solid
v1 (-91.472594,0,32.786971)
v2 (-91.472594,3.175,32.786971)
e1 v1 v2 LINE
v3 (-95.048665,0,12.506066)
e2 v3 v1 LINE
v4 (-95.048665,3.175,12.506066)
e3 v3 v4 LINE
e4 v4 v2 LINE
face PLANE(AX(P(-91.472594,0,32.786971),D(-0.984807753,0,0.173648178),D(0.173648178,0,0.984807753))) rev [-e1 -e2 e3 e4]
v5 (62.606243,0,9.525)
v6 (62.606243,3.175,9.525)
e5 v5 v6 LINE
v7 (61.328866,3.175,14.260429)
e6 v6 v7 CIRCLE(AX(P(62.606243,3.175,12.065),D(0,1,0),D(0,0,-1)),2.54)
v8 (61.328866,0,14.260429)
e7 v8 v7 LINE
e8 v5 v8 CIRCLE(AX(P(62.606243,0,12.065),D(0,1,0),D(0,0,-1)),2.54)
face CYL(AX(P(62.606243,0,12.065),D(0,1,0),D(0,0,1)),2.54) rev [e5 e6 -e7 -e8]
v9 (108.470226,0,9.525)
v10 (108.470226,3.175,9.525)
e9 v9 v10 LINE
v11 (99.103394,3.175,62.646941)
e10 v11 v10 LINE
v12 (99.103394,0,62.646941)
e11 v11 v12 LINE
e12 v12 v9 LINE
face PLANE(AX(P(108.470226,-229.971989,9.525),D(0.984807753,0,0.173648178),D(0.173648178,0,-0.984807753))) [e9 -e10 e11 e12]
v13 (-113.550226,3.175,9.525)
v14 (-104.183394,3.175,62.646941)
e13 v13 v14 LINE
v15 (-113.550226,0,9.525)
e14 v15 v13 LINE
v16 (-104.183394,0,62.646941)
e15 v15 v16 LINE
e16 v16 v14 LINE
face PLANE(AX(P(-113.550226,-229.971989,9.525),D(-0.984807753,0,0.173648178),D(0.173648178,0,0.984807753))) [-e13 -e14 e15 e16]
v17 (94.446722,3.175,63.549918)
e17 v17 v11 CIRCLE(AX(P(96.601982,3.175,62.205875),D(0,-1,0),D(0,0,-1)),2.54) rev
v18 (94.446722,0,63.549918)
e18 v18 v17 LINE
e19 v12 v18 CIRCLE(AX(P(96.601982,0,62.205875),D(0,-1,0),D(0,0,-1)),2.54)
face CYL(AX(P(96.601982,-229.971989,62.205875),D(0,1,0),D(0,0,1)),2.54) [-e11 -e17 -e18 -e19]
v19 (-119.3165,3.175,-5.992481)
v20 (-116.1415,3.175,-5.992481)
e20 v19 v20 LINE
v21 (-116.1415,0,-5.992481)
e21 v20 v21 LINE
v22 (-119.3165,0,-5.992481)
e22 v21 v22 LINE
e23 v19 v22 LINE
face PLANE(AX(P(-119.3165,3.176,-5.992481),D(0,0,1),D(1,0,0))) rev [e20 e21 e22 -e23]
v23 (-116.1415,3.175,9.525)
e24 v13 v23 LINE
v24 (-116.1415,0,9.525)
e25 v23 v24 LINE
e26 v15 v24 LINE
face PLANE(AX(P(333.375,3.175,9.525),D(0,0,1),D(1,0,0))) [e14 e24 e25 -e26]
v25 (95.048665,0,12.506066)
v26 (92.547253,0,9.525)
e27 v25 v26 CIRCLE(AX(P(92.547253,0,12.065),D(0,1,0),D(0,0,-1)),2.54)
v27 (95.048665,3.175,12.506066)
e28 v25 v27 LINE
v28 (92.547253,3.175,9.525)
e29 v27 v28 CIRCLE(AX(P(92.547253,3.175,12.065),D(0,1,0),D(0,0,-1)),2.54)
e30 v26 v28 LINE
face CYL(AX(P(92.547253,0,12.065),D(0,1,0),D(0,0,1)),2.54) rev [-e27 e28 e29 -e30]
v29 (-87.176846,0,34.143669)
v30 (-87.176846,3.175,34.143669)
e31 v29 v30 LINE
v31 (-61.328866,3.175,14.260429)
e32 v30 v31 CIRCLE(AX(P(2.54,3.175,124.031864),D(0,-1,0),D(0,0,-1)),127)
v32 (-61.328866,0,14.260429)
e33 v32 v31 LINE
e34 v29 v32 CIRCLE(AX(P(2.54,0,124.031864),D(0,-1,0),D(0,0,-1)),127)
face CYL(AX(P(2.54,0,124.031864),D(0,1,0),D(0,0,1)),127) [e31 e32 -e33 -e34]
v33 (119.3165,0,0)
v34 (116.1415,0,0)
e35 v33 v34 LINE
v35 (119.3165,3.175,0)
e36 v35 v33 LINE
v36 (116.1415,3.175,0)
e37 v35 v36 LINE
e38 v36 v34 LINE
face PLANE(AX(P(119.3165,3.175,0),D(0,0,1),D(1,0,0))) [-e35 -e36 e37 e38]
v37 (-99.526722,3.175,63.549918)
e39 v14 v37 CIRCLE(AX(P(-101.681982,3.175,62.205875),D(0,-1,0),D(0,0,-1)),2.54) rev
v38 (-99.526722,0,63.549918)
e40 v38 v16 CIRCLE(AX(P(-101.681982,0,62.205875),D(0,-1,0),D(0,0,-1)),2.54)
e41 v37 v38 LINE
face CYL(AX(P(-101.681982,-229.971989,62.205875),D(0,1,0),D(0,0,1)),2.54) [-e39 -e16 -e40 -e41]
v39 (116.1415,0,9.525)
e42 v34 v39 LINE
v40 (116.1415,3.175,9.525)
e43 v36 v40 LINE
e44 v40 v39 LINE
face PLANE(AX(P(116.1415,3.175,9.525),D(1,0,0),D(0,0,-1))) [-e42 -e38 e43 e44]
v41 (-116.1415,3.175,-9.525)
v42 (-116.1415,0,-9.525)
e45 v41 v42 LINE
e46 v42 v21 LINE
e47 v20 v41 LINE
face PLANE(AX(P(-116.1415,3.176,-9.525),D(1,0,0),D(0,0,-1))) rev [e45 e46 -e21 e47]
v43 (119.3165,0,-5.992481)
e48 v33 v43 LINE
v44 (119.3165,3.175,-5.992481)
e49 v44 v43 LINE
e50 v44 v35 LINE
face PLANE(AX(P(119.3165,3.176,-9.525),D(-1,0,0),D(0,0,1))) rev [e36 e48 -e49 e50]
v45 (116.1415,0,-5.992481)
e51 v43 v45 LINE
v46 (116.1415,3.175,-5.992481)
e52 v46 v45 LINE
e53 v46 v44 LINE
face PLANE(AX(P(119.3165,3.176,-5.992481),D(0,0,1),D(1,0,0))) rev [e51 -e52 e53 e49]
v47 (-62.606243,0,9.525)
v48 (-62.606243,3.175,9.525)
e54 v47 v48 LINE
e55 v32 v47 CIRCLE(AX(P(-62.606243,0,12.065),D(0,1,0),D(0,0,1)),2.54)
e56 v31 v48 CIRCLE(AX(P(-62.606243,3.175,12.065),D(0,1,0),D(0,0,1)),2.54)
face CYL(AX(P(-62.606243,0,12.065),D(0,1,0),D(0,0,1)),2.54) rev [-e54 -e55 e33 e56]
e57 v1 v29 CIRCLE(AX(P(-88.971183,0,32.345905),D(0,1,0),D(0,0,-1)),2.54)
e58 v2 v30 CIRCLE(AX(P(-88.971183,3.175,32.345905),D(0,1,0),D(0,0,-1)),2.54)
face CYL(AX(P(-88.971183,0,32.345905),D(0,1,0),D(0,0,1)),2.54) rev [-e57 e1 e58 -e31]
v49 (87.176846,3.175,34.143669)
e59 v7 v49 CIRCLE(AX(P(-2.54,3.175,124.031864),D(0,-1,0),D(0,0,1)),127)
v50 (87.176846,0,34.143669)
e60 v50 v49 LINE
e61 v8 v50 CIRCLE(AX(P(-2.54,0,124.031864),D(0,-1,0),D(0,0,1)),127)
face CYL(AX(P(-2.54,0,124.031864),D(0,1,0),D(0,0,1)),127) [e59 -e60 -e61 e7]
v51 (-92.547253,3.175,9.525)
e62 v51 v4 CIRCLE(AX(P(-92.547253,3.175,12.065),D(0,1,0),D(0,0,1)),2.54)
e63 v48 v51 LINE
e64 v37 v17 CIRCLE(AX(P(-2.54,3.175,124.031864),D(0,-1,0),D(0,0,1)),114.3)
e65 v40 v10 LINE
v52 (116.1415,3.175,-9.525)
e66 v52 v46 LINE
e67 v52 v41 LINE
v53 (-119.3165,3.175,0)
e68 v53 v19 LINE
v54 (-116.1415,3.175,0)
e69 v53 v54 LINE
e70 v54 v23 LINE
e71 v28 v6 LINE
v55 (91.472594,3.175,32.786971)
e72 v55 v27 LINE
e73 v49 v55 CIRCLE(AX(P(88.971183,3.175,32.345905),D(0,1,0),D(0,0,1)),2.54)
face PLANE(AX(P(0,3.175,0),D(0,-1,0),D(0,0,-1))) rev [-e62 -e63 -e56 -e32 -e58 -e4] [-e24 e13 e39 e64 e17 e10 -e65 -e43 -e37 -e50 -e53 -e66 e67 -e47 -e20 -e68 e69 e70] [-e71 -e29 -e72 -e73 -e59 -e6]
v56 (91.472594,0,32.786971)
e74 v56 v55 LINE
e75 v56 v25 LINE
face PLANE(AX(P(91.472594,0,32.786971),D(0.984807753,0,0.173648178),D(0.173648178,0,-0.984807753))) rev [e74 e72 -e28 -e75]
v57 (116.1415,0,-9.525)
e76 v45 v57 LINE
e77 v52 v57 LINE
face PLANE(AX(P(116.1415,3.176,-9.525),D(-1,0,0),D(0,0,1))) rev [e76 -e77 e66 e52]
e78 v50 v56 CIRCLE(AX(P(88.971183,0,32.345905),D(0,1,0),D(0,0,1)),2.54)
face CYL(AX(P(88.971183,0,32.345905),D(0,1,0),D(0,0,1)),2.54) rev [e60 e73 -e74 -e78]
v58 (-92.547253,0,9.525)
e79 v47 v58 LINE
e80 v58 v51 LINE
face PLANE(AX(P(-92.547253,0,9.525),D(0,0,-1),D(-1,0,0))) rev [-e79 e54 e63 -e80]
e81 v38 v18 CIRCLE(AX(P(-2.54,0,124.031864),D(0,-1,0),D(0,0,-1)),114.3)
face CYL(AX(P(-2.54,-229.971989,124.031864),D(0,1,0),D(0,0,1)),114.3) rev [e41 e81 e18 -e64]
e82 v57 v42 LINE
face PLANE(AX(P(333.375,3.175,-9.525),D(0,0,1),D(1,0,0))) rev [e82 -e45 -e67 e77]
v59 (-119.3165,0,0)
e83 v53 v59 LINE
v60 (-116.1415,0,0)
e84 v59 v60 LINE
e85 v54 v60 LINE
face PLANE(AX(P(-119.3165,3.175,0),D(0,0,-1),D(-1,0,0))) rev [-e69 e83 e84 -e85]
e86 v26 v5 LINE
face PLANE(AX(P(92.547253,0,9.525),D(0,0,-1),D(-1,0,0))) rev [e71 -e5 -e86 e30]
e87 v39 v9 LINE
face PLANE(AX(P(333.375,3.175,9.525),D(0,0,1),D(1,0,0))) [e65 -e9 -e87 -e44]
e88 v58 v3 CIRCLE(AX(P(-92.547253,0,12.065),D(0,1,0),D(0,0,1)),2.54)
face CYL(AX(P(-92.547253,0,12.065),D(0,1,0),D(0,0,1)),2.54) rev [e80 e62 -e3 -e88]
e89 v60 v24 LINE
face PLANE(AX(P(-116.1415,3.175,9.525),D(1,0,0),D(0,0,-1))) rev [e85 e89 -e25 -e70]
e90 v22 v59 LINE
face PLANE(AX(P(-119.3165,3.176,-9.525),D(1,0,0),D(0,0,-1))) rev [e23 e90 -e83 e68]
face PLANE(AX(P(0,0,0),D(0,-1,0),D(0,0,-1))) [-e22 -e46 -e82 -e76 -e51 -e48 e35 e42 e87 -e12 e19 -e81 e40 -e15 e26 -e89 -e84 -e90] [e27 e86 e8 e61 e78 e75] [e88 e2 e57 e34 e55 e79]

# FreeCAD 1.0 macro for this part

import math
import FreeCAD as App
import Part
import Sketcher
from FreeCAD import Vector
Q = App.Units.Quantity


def edges_at(feature, points):
    """Names of the edges that pass closest to the given points."""
    edges = feature.Shape.Edges
    near = lambda p: min(range(len(edges)), key=lambda i: edges[i].distToShape(Part.Vertex(*p))[0])
    return sorted({f"Edge{near(p) + 1}" for p in points})


def add_polygon(sketch, points):
    """Adds a closed chain of lines whose ends are joined by coincident constraints."""
    first, n = sketch.GeometryCount, len(points)
    for a, b in zip(points, points[1:] + points[:1]):
        sketch.addGeometry(Part.LineSegment(App.Vector(*a, 0), App.Vector(*b, 0)), False)
    for i in range(n):
        sketch.addConstraint(Sketcher.Constraint("Coincident", first + i, 2, first + (i + 1) % n, 1))

doc = App.newDocument("Part")
body = doc.addObject("PartDesign::Body", "Body")

sketch1 = body.newObject("Sketcher::SketchObject", "Sketch")
sketch1.AttachmentSupport = (doc.getObject("XZ_Plane"), [""])
sketch1.MapMode = "FlatFace"
add_polygon(sketch1, [(-333, -10), (-333, 10), (333, 10), (333, -10)])
sketch1.addConstraint([
    Sketcher.Constraint("Vertical", 0),
    Sketcher.Constraint("Horizontal", 1),
    Sketcher.Constraint("Vertical", 2),
    Sketcher.Constraint("Horizontal", 3),
    Sketcher.Constraint("Symmetric", 0, 2, 2, 2, -1, 1),
    Sketcher.Constraint("DistanceX", 1, 1, 1, 2, Q("26.25 in")),
    Sketcher.Constraint("DistanceY", 0, 1, 0, 2, Q("0.75 in")),
])
pad1 = body.newObject("PartDesign::Pad", "Pad")
pad1.Profile = sketch1
pad1.Length = Q("0.125 in")
pad1.Reversed = True

sketch2 = body.newObject("Sketcher::SketchObject", "Sketch001")
sketch2.AttachmentSupport = (doc.getObject("XZ_Plane"), [""])
sketch2.MapMode = "FlatFace"
add_polygon(sketch2, [(-333.4, 9.5), (-333.4, 0), (-330.2, 0), (-330.2, 9.5)])
add_polygon(sketch2, [(-119.3, 9.5), (-119.3, 0), (-116.1, 0), (-116.1, 9.5)])
sketch2.addConstraint([
    Sketcher.Constraint("Vertical", 0),
    Sketcher.Constraint("Horizontal", 1),
    Sketcher.Constraint("Vertical", 2),
    Sketcher.Constraint("Horizontal", 3),
    Sketcher.Constraint("Vertical", 4),
    Sketcher.Constraint("Horizontal", 5),
    Sketcher.Constraint("Vertical", 6),
    Sketcher.Constraint("Horizontal", 7),
    Sketcher.Constraint("PointOnObject", 0, 2, -1),
    Sketcher.Constraint("PointOnObject", 4, 2, -1),
    Sketcher.Constraint("Horizontal", 3, 2, 6, 2),
    Sketcher.Constraint("Equal", 3, 5),
    Sketcher.Constraint("DistanceX", 1, 2, -1, 1, Q("13 in")),
    Sketcher.Constraint("DistanceX", 1, 1, 1, 2, Q("0.125 in")),
    Sketcher.Constraint("DistanceY", 0, 2, 0, 1, Q("0.375 in")),
    Sketcher.Constraint("DistanceX", 4, 2, -1, 1, Q("4.6975 in")),
])
pocket1 = body.newObject("PartDesign::Pocket", "Pocket")
pocket1.Profile = sketch2
pocket1.Type = "ThroughAll"
doc.recompute()

mirrored = body.newObject("PartDesign::Mirrored", "Mirrored")
mirrored.Originals = [pocket1]
mirrored.MirrorPlane = (doc.getObject("YZ_Plane"), [""])
body.Tip = mirrored

sketch3 = body.newObject("Sketcher::SketchObject", "Sketch002")
sketch3.AttachmentSupport = (doc.getObject("XZ_Plane"), [""])
sketch3.MapMode = "FlatFace"
sketch3.AttachmentOffset = App.Placement(Vector(0, 0, -0.125 * 25.4), App.Rotation())
sketch3.addGeometry([
    Part.LineSegment(Vector(98, 69, 0), Vector(108, 10, 0)),
    Part.LineSegment(Vector(108, 10, 0), Vector(-114, 10, 0)),
    Part.LineSegment(Vector(-114, 10, 0), Vector(-103, 69, 0)),
    Part.ArcOfCircle(Part.Circle(Vector(-3, 124, 0), Vector(0, 0, 1), 114), math.radians(-151), math.radians(-29)),
], False)
sketch3.addConstraint([
    Sketcher.Constraint("Coincident", 0, 2, 1, 1),
    Sketcher.Constraint("Coincident", 1, 2, 2, 1),
    Sketcher.Constraint("Coincident", 2, 2, 3, 1),
    Sketcher.Constraint("Coincident", 3, 2, 0, 1),
    Sketcher.Constraint("Horizontal", 1),
    Sketcher.Constraint("Horizontal", 2, 2, 3, 2),
    Sketcher.Constraint("Equal", 0, 2),
    Sketcher.Constraint("Radius", 3, Q("4.5 in")),
    Sketcher.Constraint("Angle", 0, Q("-80 deg")),
    Sketcher.Constraint("DistanceX", 3, 3, -1, 1, Q("0.1 in")),
    Sketcher.Constraint("DistanceY", -1, 1, 0, 2, Q("0.375 in")),
    Sketcher.Constraint("Distance", 0, 60.8751),
    Sketcher.Constraint("DistanceX", 1, 2, 1, 1, 222.020451),
])
pad2 = body.newObject("PartDesign::Pad", "Pad001")
pad2.Profile = sketch3
pad2.Length = Q("0.125 in")
doc.recompute()

fillet = body.newObject("PartDesign::Fillet", "Fillet")
fillet.Base = (pad2, edges_at(pad2, [(-102.979, 1.587, 69.475), (97.899, 1.587, 69.475)]))
fillet.Radius = Q("0.1 in")

sketch4 = body.newObject("Sketcher::SketchObject", "Sketch003")
sketch4.AttachmentSupport = (doc.getObject("XZ_Plane"), [""])
sketch4.MapMode = "FlatFace"
sketch4.AttachmentOffset = App.Placement(Vector(0, 0, -0.125 * 25.4), App.Rotation())
sketch4.addGeometry([
    Part.LineSegment(Vector(-95, 12.5, 0), Vector(-91.5, 32.8, 0)),
    Part.ArcOfCircle(Part.Circle(Vector(-89, 32.3, 0), Vector(0, 0, 1), 2.5), math.radians(45), math.radians(170)),
    Part.ArcOfCircle(Part.Circle(Vector(2.5, 124, 0), Vector(0, 0, 1), 127), math.radians(-134.95), math.radians(-120.19)),
    Part.ArcOfCircle(Part.Circle(Vector(-62.6, 12.1, 0), Vector(0, 0, 1), 2.5), math.radians(-90), math.radians(60)),
    Part.LineSegment(Vector(-62.6, 9.5, 0), Vector(-92.5, 9.5, 0)),
    Part.ArcOfCircle(Part.Circle(Vector(-92.5, 12.1, 0), Vector(0, 0, 1), 2.5), math.radians(170), math.radians(270)),
    Part.LineSegment(Vector(92.5, 9.5, 0), Vector(62.6, 9.5, 0)),
    Part.ArcOfCircle(Part.Circle(Vector(62.6, 12.1, 0), Vector(0, 0, 1), 2.5), math.radians(120), math.radians(270)),
    Part.ArcOfCircle(Part.Circle(Vector(-2.5, 124, 0), Vector(0, 0, 1), 127), math.radians(-59.81), math.radians(-45.05)),
    Part.ArcOfCircle(Part.Circle(Vector(89, 32.3, 0), Vector(0, 0, 1), 2.5), math.radians(10), math.radians(135)),
    Part.LineSegment(Vector(91.5, 32.8, 0), Vector(95, 12.5, 0)),
    Part.ArcOfCircle(Part.Circle(Vector(92.5, 12.1, 0), Vector(0, 0, 1), 2.5), math.radians(-90), math.radians(10)),
], False)
sketch4.addConstraint([
    Sketcher.Constraint("Tangent", 0, 2, 1, 2),
    Sketcher.Constraint("Tangent", 1, 1, 2, 1),
    Sketcher.Constraint("Tangent", 2, 2, 3, 2),
    Sketcher.Constraint("Tangent", 3, 1, 4, 1),
    Sketcher.Constraint("Tangent", 4, 2, 5, 2),
    Sketcher.Constraint("Tangent", 5, 1, 0, 1),
    Sketcher.Constraint("Tangent", 6, 2, 7, 2),
    Sketcher.Constraint("Tangent", 7, 1, 8, 1),
    Sketcher.Constraint("Tangent", 8, 2, 9, 2),
    Sketcher.Constraint("Tangent", 9, 1, 10, 1),
    Sketcher.Constraint("Tangent", 10, 2, 11, 2),
    Sketcher.Constraint("Tangent", 11, 1, 6, 1),
    Sketcher.Constraint("Horizontal", 4),
    Sketcher.Constraint("Horizontal", 6),
    Sketcher.Constraint("Equal", 1, 3),
    Sketcher.Constraint("Equal", 3, 5),
    Sketcher.Constraint("Equal", 5, 7),
    Sketcher.Constraint("Equal", 2, 8),
    Sketcher.Constraint("Equal", 7, 9),
    Sketcher.Constraint("Equal", 9, 11),
    Sketcher.Constraint("Symmetric", 3, 3, 7, 3, -2),
    Sketcher.Constraint("Symmetric", 1, 3, 9, 3, -2),
    Sketcher.Constraint("Horizontal", 0, 2, 9, 1),
    Sketcher.Constraint("Radius", 2, Q("5 in")),
    Sketcher.Constraint("Radius", 1, Q("0.1 in")),
    Sketcher.Constraint("Angle", 0, Q("80 deg")),
    Sketcher.Constraint("DistanceX", -1, 1, 2, 3, Q("0.1 in")),
    Sketcher.Constraint("DistanceY", -1, 1, 3, 3, Q("0.475 in")),
    Sketcher.Constraint("DistanceX", 4, 2, 4, 1, 29.94101),
    Sketcher.Constraint("Distance", 0, 20.593771),
])
pocket2 = body.newObject("PartDesign::Pocket", "Pocket001")
pocket2.Profile = sketch4
pocket2.Type = "ThroughAll"
pocket2.Reversed = True

sketch5 = body.newObject("Sketcher::SketchObject", "Sketch004")
sketch5.AttachmentSupport = (doc.getObject("XZ_Plane"), [""])
sketch5.MapMode = "FlatFace"
add_polygon(sketch5, [(119, 10), (119, -10), (333, -10), (333, 10)])
sketch5.addConstraint([
    Sketcher.Constraint("Vertical", 0),
    Sketcher.Constraint("Horizontal", 1),
    Sketcher.Constraint("Vertical", 2),
    Sketcher.Constraint("Horizontal", 3),
    Sketcher.Constraint("DistanceY", 0, 2, 0, 1, Q("0.75 in")),
    Sketcher.Constraint("DistanceX", 1, 1, 1, 2, Q("8.4275 in")),
    Sketcher.Constraint("DistanceY", 0, 2, -1, 1, Q("0.375 in")),
    Sketcher.Constraint("DistanceX", -1, 1, 1, 2, Q("13.125 in")),
])
pocket3 = body.newObject("PartDesign::Pocket", "Pocket002")
pocket3.Profile = sketch5
pocket3.Type = "UpToFirst"

sketch6 = body.newObject("Sketcher::SketchObject", "Sketch005")
sketch6.AttachmentSupport = (doc.getObject("XZ_Plane"), [""])
sketch6.MapMode = "FlatFace"
add_polygon(sketch6, [(-333, 10), (-333, -10), (-119, -10), (-119, 10)])
sketch6.addConstraint([
    Sketcher.Constraint("Vertical", 0),
    Sketcher.Constraint("Horizontal", 1),
    Sketcher.Constraint("Vertical", 2),
    Sketcher.Constraint("Horizontal", 3),
    Sketcher.Constraint("DistanceY", 0, 2, 0, 1, Q("0.75 in")),
    Sketcher.Constraint("DistanceX", 1, 1, 1, 2, Q("8.4275 in")),
    Sketcher.Constraint("DistanceX", 0, 2, -1, 1, Q("13.125 in")),
    Sketcher.Constraint("DistanceY", 0, 2, -1, 1, Q("0.375 in")),
])
pocket4 = body.newObject("PartDesign::Pocket", "Pocket003")
pocket4.Profile = sketch6
pocket4.Type = "UpToFirst"

sketch7 = body.newObject("Sketcher::SketchObject", "Sketch006")
sketch7.AttachmentSupport = (doc.getObject("XZ_Plane"), [""])
sketch7.MapMode = "FlatFace"
add_polygon(sketch7, [(116.1, -6), (116.1, -9.5), (119.3, -9.5), (119.3, -6)])
sketch7.addConstraint([
    Sketcher.Constraint("Vertical", 0),
    Sketcher.Constraint("Horizontal", 1),
    Sketcher.Constraint("Vertical", 2),
    Sketcher.Constraint("Horizontal", 3),
    Sketcher.Constraint("DistanceX", 1, 1, 1, 2, Q("0.125 in")),
    Sketcher.Constraint("DistanceY", 0, 2, -1, 1, Q("0.375 in")),
    Sketcher.Constraint("DistanceX", -1, 1, 0, 2, Q("4.5725 in")),
    Sketcher.Constraint("DistanceY", 0, 2, 0, 1, 3.532519),
])
pocket5 = body.newObject("PartDesign::Pocket", "Pocket004")
pocket5.Profile = sketch7
pocket5.Type = "UpToFirst"

sketch8 = body.newObject("Sketcher::SketchObject", "Sketch007")
sketch8.AttachmentSupport = (doc.getObject("XZ_Plane"), [""])
sketch8.MapMode = "FlatFace"
add_polygon(sketch8, [(-119.3, -6), (-119.3, -9.5), (-116.1, -9.5), (-116.1, -6)])
sketch8.addConstraint([
    Sketcher.Constraint("Vertical", 0),
    Sketcher.Constraint("Horizontal", 1),
    Sketcher.Constraint("Vertical", 2),
    Sketcher.Constraint("Horizontal", 3),
    Sketcher.Constraint("DistanceX", 1, 1, 1, 2, Q("0.125 in")),
    Sketcher.Constraint("DistanceY", 0, 2, -1, 1, Q("0.375 in")),
    Sketcher.Constraint("DistanceX", 0, 2, -1, 1, Q("4.6975 in")),
    Sketcher.Constraint("DistanceY", 0, 2, 0, 1, 3.532519),
])
pocket6 = body.newObject("PartDesign::Pocket", "Pocket005")
pocket6.Profile = sketch8
pocket6.Type = "UpToFirst"

doc.recompute()
